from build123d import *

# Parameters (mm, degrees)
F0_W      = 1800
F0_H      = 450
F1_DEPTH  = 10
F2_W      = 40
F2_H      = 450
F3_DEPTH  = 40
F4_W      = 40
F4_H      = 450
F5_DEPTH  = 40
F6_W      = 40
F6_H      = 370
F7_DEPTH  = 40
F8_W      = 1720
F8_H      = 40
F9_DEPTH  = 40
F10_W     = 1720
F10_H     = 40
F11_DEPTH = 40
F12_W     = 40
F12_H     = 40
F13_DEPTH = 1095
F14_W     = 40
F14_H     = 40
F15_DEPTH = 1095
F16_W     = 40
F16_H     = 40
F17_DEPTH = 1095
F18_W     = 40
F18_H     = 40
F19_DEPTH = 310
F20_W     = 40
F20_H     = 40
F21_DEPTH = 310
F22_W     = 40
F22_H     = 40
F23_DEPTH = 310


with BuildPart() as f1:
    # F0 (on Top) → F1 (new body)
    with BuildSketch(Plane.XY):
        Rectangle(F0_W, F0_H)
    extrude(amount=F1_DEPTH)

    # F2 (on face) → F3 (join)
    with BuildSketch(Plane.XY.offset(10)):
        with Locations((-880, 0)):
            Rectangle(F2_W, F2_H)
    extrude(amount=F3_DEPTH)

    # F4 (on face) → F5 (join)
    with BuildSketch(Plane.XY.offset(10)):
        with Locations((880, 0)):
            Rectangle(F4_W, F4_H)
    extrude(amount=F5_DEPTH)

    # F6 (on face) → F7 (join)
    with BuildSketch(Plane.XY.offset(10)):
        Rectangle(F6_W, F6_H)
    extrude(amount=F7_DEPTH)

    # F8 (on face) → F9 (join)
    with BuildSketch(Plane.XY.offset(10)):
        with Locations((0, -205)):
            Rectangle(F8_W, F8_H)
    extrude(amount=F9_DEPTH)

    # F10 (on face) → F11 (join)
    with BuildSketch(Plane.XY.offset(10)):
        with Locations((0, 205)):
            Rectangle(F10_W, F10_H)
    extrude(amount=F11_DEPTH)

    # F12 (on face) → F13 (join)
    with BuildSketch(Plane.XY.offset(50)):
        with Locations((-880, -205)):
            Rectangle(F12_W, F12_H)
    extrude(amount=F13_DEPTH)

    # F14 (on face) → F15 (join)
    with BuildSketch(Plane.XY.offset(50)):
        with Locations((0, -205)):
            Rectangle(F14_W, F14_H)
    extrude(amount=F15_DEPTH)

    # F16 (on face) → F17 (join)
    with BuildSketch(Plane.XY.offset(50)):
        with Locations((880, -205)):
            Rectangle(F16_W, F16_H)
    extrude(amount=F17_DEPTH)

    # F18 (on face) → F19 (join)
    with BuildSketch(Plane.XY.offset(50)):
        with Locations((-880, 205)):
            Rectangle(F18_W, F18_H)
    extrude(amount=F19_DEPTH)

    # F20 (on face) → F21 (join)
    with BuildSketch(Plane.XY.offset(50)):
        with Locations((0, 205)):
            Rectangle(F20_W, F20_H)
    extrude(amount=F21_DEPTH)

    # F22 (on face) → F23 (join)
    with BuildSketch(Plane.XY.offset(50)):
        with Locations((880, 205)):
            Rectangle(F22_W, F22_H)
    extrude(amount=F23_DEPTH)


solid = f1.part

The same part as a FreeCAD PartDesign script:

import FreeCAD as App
import Part
import Sketcher

V = App.Vector
Q = App.Units.Quantity


def add_polygon(sketch, points):
    """Adds a closed chain of lines whose ends are joined by coincident constraints."""
    first, n = sketch.GeometryCount, len(points)
    for a, b in zip(points, points[1:] + points[:1]):
        sketch.addGeometry(Part.LineSegment(App.Vector(*a, 0), App.Vector(*b, 0)), False)
    for i in range(n):
        sketch.addConstraint(Sketcher.Constraint("Coincident", first + i, 2, first + (i + 1) % n, 1))

doc = App.newDocument("Part")
body = doc.addObject("PartDesign::Body", "Body")

# Sketch on XY plane
sketch1 = body.newObject("Sketcher::SketchObject", "Sketch")
sketch1.AttachmentSupport = (doc.getObject("XY_Plane"), [""])
sketch1.MapMode = "FlatFace"
add_polygon(sketch1, [(-900, 225), (-900, -225), (900, -225), (900, 225)])  # lines 0-3
sketch1.addConstraint([
    Sketcher.Constraint("Vertical", 0),
    Sketcher.Constraint("Horizontal", 1),
    Sketcher.Constraint("Vertical", 2),
    Sketcher.Constraint("Horizontal", 3),
    Sketcher.Constraint("Symmetric", 0, 2, 2, 2, -1, 1),
    Sketcher.Constraint("DistanceX", 1, 1, 1, 2, Q("1800 mm")),
    Sketcher.Constraint("DistanceY", 0, 2, 0, 1, Q("450 mm")),
])
pad1 = body.newObject("PartDesign::Pad", "Pad")
pad1.Profile = sketch1
pad1.Length = 10

# Sketch on XY plane
sketch2 = body.newObject("Sketcher::SketchObject", "Sketch001")
sketch2.AttachmentSupport = (doc.getObject("XY_Plane"), [""])
sketch2.MapMode = "FlatFace"
sketch2.AttachmentOffset = App.Placement(V(0, 0, 10), App.Rotation())
add_polygon(sketch2, [(-900, 225), (-900, -225), (-860, -225), (-860, 225)])  # lines 0-3
sketch2.addConstraint([
    Sketcher.Constraint("Vertical", 0),
    Sketcher.Constraint("Horizontal", 1),
    Sketcher.Constraint("Vertical", 2),
    Sketcher.Constraint("Horizontal", 3),
    Sketcher.Constraint("DistanceX", 1, 1, 1, 2, Q("40 mm")),
    Sketcher.Constraint("DistanceY", 0, 2, 0, 1, Q("450 mm")),
    Sketcher.Constraint("DistanceX", 0, 2, -1, 1, Q("900 mm")),
    Sketcher.Constraint("DistanceY", 0, 2, -1, 1, Q("225 mm")),
])
pad2 = body.newObject("PartDesign::Pad", "Pad001")
pad2.Profile = sketch2
pad2.Length = 40

# Sketch on XY plane
sketch3 = body.newObject("Sketcher::SketchObject", "Sketch002")
sketch3.AttachmentSupport = (doc.getObject("XY_Plane"), [""])
sketch3.MapMode = "FlatFace"
sketch3.AttachmentOffset = App.Placement(V(0, 0, 10), App.Rotation())
add_polygon(sketch3, [(860, 225), (860, -225), (900, -225), (900, 225)])  # lines 0-3
sketch3.addConstraint([
    Sketcher.Constraint("Vertical", 0),
    Sketcher.Constraint("Horizontal", 1),
    Sketcher.Constraint("Vertical", 2),
    Sketcher.Constraint("Horizontal", 3),
    Sketcher.Constraint("DistanceX", 1, 1, 1, 2, Q("40 mm")),
    Sketcher.Constraint("DistanceY", 0, 2, 0, 1, Q("450 mm")),
    Sketcher.Constraint("DistanceX", -1, 1, 0, 2, Q("860 mm")),
    Sketcher.Constraint("DistanceY", 0, 2, -1, 1, Q("225 mm")),
])
pad3 = body.newObject("PartDesign::Pad", "Pad002")
pad3.Profile = sketch3
pad3.Length = 40

# Sketch on XY plane
sketch4 = body.newObject("Sketcher::SketchObject", "Sketch003")
sketch4.AttachmentSupport = (doc.getObject("XY_Plane"), [""])
sketch4.MapMode = "FlatFace"
sketch4.AttachmentOffset = App.Placement(V(0, 0, 10), App.Rotation())
add_polygon(sketch4, [(-20, 185), (-20, -185), (20, -185), (20, 185)])  # lines 0-3
sketch4.addConstraint([
    Sketcher.Constraint("Vertical", 0),
    Sketcher.Constraint("Horizontal", 1),
    Sketcher.Constraint("Vertical", 2),
    Sketcher.Constraint("Horizontal", 3),
    Sketcher.Constraint("Symmetric", 0, 2, 2, 2, -1, 1),
    Sketcher.Constraint("DistanceX", 1, 1, 1, 2, Q("40 mm")),
    Sketcher.Constraint("DistanceY", 0, 2, 0, 1, Q("370 mm")),
])
pad4 = body.newObject("PartDesign::Pad", "Pad003")
pad4.Profile = sketch4
pad4.Length = 40

# Sketch on XY plane
sketch5 = body.newObject("Sketcher::SketchObject", "Sketch004")
sketch5.AttachmentSupport = (doc.getObject("XY_Plane"), [""])
sketch5.MapMode = "FlatFace"
sketch5.AttachmentOffset = App.Placement(V(0, 0, 10), App.Rotation())
add_polygon(sketch5, [(-860, -185), (-860, -225), (860, -225), (860, -185)])  # lines 0-3
sketch5.addConstraint([
    Sketcher.Constraint("Vertical", 0),
    Sketcher.Constraint("Horizontal", 1),
    Sketcher.Constraint("Vertical", 2),
    Sketcher.Constraint("Horizontal", 3),
    Sketcher.Constraint("DistanceX", 1, 1, 1, 2, Q("1720 mm")),
    Sketcher.Constraint("DistanceY", 0, 2, 0, 1, Q("40 mm")),
    Sketcher.Constraint("DistanceX", 0, 2, -1, 1, Q("860 mm")),
    Sketcher.Constraint("DistanceY", 0, 2, -1, 1, Q("225 mm")),
])
pad5 = body.newObject("PartDesign::Pad", "Pad004")
pad5.Profile = sketch5
pad5.Length = 40

# Sketch on XY plane
sketch6 = body.newObject("Sketcher::SketchObject", "Sketch005")
sketch6.AttachmentSupport = (doc.getObject("XY_Plane"), [""])
sketch6.MapMode = "FlatFace"
sketch6.AttachmentOffset = App.Placement(V(0, 0, 10), App.Rotation())
add_polygon(sketch6, [(-860, 225), (-860, 185), (860, 185), (860, 225)])  # lines 0-3
sketch6.addConstraint([
    Sketcher.Constraint("Vertical", 0),
    Sketcher.Constraint("Horizontal", 1),
    Sketcher.Constraint("Vertical", 2),
    Sketcher.Constraint("Horizontal", 3),
    Sketcher.Constraint("DistanceX", 1, 1, 1, 2, Q("1720 mm")),
    Sketcher.Constraint("DistanceY", 0, 2, 0, 1, Q("40 mm")),
    Sketcher.Constraint("DistanceX", 0, 2, -1, 1, Q("860 mm")),
    Sketcher.Constraint("DistanceY", -1, 1, 0, 2, Q("185 mm")),
])
pad6 = body.newObject("PartDesign::Pad", "Pad005")
pad6.Profile = sketch6
pad6.Length = 40

# Sketch on XY plane
sketch7 = body.newObject("Sketcher::SketchObject", "Sketch006")
sketch7.AttachmentSupport = (doc.getObject("XY_Plane"), [""])
sketch7.MapMode = "FlatFace"
sketch7.AttachmentOffset = App.Placement(V(0, 0, 50), App.Rotation())
add_polygon(sketch7, [(-900, -185), (-900, -225), (-860, -225), (-860, -185)])  # lines 0-3
sketch7.addConstraint([
    Sketcher.Constraint("Vertical", 0),
    Sketcher.Constraint("Horizontal", 1),
    Sketcher.Constraint("Vertical", 2),
    Sketcher.Constraint("Horizontal", 3),
    Sketcher.Constraint("Equal", 3, 0),
    Sketcher.Constraint("DistanceX", 1, 1, 1, 2, Q("40 mm")),
    Sketcher.Constraint("DistanceX", 0, 2, -1, 1, Q("900 mm")),
    Sketcher.Constraint("DistanceY", 0, 2, -1, 1, Q("225 mm")),
])
pad7 = body.newObject("PartDesign::Pad", "Pad006")
pad7.Profile = sketch7
pad7.Length = 1095

# Sketch on XY plane
sketch8 = body.newObject("Sketcher::SketchObject", "Sketch007")
sketch8.AttachmentSupport = (doc.getObject("XY_Plane"), [""])
sketch8.MapMode = "FlatFace"
sketch8.AttachmentOffset = App.Placement(V(0, 0, 50), App.Rotation())
add_polygon(sketch8, [(-20, -185), (-20, -225), (20, -225), (20, -185)])  # lines 0-3
sketch8.addConstraint([
    Sketcher.Constraint("Vertical", 0),
    Sketcher.Constraint("Horizontal", 1),
    Sketcher.Constraint("Vertical", 2),
    Sketcher.Constraint("Horizontal", 3),
    Sketcher.Constraint("Equal", 3, 0),
    Sketcher.Constraint("DistanceX", 1, 1, 1, 2, Q("40 mm")),
    Sketcher.Constraint("DistanceX", 0, 2, -1, 1, Q("20 mm")),
    Sketcher.Constraint("DistanceY", 0, 2, -1, 1, Q("225 mm")),
])
pad8 = body.newObject("PartDesign::Pad", "Pad007")
pad8.Profile = sketch8
pad8.Length = 1095

# Sketch on XY plane
sketch9 = body.newObject("Sketcher::SketchObject", "Sketch008")
sketch9.AttachmentSupport = (doc.getObject("XY_Plane"), [""])
sketch9.MapMode = "FlatFace"
sketch9.AttachmentOffset = App.Placement(V(0, 0, 50), App.Rotation())
add_polygon(sketch9, [(860, -185), (860, -225), (900, -225), (900, -185)])  # lines 0-3
sketch9.addConstraint([
    Sketcher.Constraint("Vertical", 0),
    Sketcher.Constraint("Horizontal", 1),
    Sketcher.Constraint("Vertical", 2),
    Sketcher.Constraint("Horizontal", 3),
    Sketcher.Constraint("Equal", 3, 0),
    Sketcher.Constraint("DistanceX", 1, 1, 1, 2, Q("40 mm")),
    Sketcher.Constraint("DistanceX", -1, 1, 0, 2, Q("860 mm")),
    Sketcher.Constraint("DistanceY", 0, 2, -1, 1, Q("225 mm")),
])
pad9 = body.newObject("PartDesign::Pad", "Pad008")
pad9.Profile = sketch9
pad9.Length = 1095

# Sketch on XY plane
sketch10 = body.newObject("Sketcher::SketchObject", "Sketch009")
sketch10.AttachmentSupport = (doc.getObject("XY_Plane"), [""])
sketch10.MapMode = "FlatFace"
sketch10.AttachmentOffset = App.Placement(V(0, 0, 50), App.Rotation())
add_polygon(sketch10, [(-900, 225), (-900, 185), (-860, 185), (-860, 225)])  # lines 0-3
sketch10.addConstraint([
    Sketcher.Constraint("Vertical", 0),
    Sketcher.Constraint("Horizontal", 1),
    Sketcher.Constraint("Vertical", 2),
    Sketcher.Constraint("Horizontal", 3),
    Sketcher.Constraint("Equal", 3, 0),
    Sketcher.Constraint("DistanceX", 1, 1, 1, 2, Q("40 mm")),
    Sketcher.Constraint("DistanceX", 0, 2, -1, 1, Q("900 mm")),
    Sketcher.Constraint("DistanceY", -1, 1, 0, 2, Q("185 mm")),
])
pad10 = body.newObject("PartDesign::Pad", "Pad009")
pad10.Profile = sketch10
pad10.Length = 310

# Sketch on XY plane
sketch11 = body.newObject("Sketcher::SketchObject", "Sketch010")
sketch11.AttachmentSupport = (doc.getObject("XY_Plane"), [""])
sketch11.MapMode = "FlatFace"
sketch11.AttachmentOffset = App.Placement(V(0, 0, 50), App.Rotation())
add_polygon(sketch11, [(-20, 225), (-20, 185), (20, 185), (20, 225)])  # lines 0-3
sketch11.addConstraint([
    Sketcher.Constraint("Vertical", 0),
    Sketcher.Constraint("Horizontal", 1),
    Sketcher.Constraint("Vertical", 2),
    Sketcher.Constraint("Horizontal", 3),
    Sketcher.Constraint("Equal", 3, 0),
    Sketcher.Constraint("DistanceX", 1, 1, 1, 2, Q("40 mm")),
    Sketcher.Constraint("DistanceX", 0, 2, -1, 1, Q("20 mm")),
    Sketcher.Constraint("DistanceY", -1, 1, 0, 2, Q("185 mm")),
])
pad11 = body.newObject("PartDesign::Pad", "Pad010")
pad11.Profile = sketch11
pad11.Length = 310

# Sketch on XY plane
sketch12 = body.newObject("Sketcher::SketchObject", "Sketch011")
sketch12.AttachmentSupport = (doc.getObject("XY_Plane"), [""])
sketch12.MapMode = "FlatFace"
sketch12.AttachmentOffset = App.Placement(V(0, 0, 50), App.Rotation())
add_polygon(sketch12, [(860, 225), (860, 185), (900, 185), (900, 225)])  # lines 0-3
sketch12.addConstraint([
    Sketcher.Constraint("Vertical", 0),
    Sketcher.Constraint("Horizontal", 1),
    Sketcher.Constraint("Vertical", 2),
    Sketcher.Constraint("Horizontal", 3),
    Sketcher.Constraint("Equal", 3, 0),
    Sketcher.Constraint("DistanceX", 1, 1, 1, 2, Q("40 mm")),
    Sketcher.Constraint("DistanceX", -1, 1, 0, 2, Q("860 mm")),
    Sketcher.Constraint("DistanceY", -1, 1, 0, 2, Q("185 mm")),
])
pad12 = body.newObject("PartDesign::Pad", "Pad011")
pad12.Profile = sketch12
pad12.Length = 310

doc.recompute()
